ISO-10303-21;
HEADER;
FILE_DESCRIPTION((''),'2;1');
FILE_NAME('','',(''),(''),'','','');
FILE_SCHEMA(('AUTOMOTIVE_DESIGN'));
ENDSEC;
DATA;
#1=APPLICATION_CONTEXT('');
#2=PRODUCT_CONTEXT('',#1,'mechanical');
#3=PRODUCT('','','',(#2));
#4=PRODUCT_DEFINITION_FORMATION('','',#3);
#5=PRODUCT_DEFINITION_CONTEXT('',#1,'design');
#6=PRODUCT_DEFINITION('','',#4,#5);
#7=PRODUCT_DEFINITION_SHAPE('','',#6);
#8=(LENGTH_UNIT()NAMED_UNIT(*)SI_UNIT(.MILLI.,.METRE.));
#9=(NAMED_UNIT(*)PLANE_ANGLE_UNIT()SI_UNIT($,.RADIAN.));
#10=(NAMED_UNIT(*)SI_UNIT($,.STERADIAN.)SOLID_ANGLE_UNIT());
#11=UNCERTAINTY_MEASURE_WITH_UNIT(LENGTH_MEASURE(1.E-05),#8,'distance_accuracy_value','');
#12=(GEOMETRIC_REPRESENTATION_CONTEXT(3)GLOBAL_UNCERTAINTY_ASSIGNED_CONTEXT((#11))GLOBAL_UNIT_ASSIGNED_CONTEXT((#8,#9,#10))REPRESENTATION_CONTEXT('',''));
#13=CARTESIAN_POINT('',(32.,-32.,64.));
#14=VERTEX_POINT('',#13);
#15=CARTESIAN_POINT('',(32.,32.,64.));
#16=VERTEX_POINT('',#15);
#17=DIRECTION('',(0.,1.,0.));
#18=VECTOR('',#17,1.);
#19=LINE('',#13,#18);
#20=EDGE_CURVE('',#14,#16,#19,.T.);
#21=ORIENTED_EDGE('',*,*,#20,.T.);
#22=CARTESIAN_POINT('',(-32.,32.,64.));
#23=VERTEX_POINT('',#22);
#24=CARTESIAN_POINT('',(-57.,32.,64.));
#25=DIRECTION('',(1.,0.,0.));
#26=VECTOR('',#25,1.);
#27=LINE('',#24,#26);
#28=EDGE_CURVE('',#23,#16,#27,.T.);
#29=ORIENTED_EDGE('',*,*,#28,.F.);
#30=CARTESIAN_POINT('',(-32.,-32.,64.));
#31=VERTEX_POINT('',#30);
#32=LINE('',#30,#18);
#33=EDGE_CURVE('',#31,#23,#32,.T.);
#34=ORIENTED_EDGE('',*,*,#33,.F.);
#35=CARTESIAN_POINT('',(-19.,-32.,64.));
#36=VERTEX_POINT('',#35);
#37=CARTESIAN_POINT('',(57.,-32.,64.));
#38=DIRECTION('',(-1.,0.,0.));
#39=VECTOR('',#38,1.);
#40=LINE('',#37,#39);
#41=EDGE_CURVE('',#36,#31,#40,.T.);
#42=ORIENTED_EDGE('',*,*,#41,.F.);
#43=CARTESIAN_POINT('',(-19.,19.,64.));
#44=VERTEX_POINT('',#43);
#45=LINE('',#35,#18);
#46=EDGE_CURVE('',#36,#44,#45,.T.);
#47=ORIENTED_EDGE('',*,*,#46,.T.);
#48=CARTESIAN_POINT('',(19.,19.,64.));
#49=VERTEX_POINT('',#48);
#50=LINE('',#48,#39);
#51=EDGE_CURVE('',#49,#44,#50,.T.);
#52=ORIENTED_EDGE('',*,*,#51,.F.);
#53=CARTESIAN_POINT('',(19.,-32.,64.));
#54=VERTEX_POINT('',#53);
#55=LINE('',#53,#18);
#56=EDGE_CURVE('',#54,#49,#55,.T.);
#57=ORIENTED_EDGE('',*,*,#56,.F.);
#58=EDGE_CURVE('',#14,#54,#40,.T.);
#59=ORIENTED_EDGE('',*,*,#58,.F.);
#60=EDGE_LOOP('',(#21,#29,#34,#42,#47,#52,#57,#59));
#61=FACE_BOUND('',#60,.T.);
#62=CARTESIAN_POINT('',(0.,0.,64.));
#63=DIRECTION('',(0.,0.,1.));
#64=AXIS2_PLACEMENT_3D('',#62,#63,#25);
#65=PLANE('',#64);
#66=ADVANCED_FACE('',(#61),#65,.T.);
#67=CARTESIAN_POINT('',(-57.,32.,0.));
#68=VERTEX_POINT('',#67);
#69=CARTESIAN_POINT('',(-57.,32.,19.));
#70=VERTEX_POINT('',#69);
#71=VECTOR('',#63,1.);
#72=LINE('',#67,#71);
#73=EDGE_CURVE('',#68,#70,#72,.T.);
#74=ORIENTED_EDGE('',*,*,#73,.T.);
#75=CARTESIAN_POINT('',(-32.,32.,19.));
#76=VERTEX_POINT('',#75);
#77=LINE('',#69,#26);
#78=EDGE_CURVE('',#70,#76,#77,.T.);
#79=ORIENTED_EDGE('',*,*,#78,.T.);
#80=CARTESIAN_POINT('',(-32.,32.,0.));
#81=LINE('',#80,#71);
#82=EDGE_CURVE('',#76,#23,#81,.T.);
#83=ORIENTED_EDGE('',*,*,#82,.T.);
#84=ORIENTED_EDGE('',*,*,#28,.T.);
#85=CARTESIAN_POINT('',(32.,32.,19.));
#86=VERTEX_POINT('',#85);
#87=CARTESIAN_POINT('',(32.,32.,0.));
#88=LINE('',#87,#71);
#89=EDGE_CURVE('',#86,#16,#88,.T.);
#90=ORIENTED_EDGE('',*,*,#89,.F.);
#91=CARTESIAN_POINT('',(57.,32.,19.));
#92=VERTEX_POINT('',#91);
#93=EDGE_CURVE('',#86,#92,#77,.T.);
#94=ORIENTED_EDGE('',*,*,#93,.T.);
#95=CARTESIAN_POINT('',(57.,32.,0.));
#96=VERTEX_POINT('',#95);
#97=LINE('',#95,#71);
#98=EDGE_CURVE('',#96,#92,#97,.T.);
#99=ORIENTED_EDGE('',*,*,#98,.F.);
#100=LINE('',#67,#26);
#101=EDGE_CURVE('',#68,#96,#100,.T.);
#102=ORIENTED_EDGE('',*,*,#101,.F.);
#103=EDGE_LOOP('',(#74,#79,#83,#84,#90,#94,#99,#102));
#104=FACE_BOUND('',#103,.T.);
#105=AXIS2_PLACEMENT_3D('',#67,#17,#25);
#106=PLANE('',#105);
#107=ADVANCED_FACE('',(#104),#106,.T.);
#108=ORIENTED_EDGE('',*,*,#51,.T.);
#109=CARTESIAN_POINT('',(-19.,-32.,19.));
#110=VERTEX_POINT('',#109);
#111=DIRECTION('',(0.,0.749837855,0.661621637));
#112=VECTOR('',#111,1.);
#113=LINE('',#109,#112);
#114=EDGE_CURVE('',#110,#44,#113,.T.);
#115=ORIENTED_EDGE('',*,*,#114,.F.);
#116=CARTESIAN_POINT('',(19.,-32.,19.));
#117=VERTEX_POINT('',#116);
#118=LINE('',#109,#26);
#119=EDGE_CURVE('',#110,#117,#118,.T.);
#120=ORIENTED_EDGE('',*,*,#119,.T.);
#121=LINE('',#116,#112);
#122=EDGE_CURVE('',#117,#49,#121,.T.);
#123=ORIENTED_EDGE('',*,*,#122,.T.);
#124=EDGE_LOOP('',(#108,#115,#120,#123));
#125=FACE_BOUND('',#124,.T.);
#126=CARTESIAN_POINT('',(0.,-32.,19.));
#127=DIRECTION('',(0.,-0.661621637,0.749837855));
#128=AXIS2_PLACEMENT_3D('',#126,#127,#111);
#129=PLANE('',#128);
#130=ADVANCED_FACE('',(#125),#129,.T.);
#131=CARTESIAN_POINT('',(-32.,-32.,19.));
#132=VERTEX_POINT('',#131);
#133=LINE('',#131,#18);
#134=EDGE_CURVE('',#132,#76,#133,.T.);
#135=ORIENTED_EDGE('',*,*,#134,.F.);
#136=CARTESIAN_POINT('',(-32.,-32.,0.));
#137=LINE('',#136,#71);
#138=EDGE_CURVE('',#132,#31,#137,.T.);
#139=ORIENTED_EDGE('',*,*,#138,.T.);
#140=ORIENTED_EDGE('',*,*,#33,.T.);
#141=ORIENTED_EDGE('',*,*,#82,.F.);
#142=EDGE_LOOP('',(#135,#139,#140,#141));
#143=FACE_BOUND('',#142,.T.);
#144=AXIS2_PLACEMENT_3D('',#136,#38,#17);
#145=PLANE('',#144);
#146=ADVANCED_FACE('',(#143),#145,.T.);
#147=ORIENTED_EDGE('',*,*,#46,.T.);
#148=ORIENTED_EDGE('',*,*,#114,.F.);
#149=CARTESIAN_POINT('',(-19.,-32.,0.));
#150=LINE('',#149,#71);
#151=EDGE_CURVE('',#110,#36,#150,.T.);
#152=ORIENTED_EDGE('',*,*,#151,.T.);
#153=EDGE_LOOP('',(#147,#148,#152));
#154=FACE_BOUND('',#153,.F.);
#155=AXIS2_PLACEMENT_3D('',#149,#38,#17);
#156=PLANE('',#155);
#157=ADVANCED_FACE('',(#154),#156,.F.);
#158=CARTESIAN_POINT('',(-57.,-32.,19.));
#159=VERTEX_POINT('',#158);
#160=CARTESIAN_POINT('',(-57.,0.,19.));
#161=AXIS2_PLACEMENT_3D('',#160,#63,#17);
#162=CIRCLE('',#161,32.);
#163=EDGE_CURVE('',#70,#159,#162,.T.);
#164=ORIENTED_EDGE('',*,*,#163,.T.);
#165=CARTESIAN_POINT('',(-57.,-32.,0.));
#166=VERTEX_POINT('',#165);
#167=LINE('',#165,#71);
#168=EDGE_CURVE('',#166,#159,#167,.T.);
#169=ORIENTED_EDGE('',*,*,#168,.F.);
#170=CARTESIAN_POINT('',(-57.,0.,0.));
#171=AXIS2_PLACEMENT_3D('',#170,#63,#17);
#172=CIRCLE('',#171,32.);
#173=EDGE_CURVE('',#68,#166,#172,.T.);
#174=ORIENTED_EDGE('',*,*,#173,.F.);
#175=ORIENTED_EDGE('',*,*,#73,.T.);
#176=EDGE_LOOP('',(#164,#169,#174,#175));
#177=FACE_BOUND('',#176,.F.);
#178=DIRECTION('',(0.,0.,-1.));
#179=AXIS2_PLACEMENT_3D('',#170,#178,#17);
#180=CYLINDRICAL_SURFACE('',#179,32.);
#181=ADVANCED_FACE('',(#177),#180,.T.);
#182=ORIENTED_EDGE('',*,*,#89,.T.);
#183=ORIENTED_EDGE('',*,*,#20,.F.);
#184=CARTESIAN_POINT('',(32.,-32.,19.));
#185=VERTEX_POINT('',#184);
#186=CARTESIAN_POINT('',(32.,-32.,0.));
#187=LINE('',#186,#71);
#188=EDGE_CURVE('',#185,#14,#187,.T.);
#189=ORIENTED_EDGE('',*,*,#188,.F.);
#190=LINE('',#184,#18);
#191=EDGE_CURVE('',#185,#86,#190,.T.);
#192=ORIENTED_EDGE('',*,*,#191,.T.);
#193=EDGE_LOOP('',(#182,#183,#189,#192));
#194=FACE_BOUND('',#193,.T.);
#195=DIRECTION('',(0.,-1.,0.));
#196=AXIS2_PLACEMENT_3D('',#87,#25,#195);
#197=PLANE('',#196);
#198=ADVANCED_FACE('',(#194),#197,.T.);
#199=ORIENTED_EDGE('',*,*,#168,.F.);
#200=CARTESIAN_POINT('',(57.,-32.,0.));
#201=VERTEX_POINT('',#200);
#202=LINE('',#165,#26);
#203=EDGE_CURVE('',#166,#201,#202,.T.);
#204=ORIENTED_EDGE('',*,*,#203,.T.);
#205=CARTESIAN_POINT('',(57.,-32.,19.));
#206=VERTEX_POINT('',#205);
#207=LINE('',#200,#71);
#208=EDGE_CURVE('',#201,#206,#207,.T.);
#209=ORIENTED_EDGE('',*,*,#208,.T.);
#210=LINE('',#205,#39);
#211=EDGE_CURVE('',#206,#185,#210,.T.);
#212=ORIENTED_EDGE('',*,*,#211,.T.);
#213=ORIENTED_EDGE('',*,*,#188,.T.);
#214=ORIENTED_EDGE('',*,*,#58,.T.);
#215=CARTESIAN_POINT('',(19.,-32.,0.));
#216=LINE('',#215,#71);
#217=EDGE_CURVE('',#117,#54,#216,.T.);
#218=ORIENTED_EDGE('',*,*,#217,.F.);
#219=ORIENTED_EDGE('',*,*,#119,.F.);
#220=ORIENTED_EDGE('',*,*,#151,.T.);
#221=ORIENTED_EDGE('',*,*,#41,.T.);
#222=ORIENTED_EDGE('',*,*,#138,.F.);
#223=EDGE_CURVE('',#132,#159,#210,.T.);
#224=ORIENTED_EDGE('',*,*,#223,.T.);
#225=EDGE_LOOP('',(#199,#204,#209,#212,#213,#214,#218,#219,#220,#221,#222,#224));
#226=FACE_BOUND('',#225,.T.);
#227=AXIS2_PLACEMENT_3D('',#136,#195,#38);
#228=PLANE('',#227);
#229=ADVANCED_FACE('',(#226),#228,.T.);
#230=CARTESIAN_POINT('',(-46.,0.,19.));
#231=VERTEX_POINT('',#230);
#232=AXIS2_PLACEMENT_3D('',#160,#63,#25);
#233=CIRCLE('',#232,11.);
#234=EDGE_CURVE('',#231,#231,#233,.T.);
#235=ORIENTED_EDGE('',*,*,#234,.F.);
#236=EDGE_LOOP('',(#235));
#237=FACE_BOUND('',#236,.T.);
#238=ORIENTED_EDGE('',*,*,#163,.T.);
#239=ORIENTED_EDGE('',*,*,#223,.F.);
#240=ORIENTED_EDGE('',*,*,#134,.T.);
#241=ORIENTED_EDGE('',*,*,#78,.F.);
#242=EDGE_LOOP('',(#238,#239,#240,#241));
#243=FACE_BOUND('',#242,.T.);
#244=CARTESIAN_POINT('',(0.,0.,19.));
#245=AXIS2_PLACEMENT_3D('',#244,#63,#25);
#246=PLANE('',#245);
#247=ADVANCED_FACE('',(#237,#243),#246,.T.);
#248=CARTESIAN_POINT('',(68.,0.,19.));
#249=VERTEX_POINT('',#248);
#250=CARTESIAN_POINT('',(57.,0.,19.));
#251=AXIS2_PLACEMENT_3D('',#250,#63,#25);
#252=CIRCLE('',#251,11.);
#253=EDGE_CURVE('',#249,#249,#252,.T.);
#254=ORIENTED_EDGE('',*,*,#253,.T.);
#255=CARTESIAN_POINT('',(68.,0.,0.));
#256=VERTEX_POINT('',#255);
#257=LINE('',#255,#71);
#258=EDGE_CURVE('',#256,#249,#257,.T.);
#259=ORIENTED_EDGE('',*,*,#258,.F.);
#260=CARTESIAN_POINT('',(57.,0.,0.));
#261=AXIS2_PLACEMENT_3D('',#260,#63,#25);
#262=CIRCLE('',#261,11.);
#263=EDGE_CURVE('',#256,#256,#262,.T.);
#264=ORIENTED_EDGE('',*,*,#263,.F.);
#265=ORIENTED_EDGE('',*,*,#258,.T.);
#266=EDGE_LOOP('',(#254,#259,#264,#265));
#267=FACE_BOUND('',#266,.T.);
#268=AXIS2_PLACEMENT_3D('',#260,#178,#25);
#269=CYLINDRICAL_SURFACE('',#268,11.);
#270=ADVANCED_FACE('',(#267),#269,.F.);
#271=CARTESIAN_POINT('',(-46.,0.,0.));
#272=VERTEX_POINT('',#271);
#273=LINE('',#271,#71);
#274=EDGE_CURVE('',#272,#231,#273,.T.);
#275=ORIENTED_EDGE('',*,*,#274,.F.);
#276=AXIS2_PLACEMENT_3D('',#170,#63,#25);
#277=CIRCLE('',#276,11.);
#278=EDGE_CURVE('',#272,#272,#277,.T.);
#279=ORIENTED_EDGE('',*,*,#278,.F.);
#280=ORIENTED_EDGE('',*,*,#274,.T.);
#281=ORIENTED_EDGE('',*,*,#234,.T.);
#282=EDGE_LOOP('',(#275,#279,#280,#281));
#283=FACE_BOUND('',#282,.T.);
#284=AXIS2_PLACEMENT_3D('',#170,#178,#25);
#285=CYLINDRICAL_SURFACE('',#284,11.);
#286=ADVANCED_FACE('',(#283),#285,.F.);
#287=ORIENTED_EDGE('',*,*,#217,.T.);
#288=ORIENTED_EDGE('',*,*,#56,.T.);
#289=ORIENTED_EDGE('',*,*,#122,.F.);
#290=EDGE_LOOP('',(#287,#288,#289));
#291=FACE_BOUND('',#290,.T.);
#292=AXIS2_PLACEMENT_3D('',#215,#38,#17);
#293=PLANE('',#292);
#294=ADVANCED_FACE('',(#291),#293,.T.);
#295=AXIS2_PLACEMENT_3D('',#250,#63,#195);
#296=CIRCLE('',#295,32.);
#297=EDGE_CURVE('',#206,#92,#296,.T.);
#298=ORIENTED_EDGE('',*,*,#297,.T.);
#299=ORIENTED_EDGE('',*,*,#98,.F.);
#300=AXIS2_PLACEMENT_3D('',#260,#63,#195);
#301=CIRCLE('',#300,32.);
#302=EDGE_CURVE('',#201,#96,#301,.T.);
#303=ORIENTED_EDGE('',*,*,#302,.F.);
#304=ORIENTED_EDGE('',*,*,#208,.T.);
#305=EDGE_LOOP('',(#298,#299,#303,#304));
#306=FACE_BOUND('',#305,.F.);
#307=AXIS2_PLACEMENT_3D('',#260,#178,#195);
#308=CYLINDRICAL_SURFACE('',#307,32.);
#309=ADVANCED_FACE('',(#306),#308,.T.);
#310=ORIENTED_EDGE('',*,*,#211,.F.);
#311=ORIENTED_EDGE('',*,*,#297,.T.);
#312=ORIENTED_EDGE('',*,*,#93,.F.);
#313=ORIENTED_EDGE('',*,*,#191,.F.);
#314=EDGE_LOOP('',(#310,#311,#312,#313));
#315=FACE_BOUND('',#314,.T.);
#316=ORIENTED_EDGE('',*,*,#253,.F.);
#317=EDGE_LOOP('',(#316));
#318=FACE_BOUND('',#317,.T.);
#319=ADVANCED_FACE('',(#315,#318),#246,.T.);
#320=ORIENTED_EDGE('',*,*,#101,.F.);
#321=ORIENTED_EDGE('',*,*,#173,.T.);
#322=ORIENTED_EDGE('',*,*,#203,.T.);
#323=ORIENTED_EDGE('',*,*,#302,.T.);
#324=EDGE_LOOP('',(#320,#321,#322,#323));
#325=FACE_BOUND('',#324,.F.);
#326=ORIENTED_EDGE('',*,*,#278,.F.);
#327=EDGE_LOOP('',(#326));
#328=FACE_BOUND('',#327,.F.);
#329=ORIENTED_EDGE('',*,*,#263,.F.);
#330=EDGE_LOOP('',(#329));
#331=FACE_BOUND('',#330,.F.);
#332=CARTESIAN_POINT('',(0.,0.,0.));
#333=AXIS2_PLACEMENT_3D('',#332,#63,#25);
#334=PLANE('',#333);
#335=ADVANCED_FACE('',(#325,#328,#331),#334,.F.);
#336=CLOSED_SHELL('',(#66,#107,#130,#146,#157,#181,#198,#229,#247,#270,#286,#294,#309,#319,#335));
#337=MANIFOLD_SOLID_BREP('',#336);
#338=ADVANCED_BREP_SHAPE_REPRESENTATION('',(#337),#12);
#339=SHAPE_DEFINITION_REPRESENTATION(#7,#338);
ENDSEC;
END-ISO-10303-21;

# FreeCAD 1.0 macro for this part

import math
import FreeCAD as App
import Part
import Sketcher

V = App.Vector
Q = App.Units.Quantity

doc = App.newDocument("Part")
body = doc.addObject("PartDesign::Body", "Body")
body.AllowCompound = True

# Sketch on YZ plane
sketch1 = body.newObject("Sketcher::SketchObject", "Sketch")
sketch1.AttachmentSupport = (doc.getObject("YZ_Plane"), [""])
sketch1.MapMode = "FlatFace"
sketch1.addGeometry(Part.LineSegment(V(19, 64, 0), V(-32, 19, 0)), False)
sketch1.addGeometry(Part.LineSegment(V(-32, 19, 0), V(19, 19, 0)), False)
sketch1.addGeometry(Part.LineSegment(V(19, 19, 0), V(19, 64, 0)), False)
sketch1.addConstraint(Sketcher.Constraint("Coincident", 0, 2, 1, 1))
sketch1.addConstraint(Sketcher.Constraint("Coincident", 1, 2, 2, 1))
sketch1.addConstraint(Sketcher.Constraint("Coincident", 2, 2, 0, 1))
sketch1.addConstraint(Sketcher.Constraint("Horizontal", 1))
sketch1.addConstraint(Sketcher.Constraint("Vertical", 2))
sketch1.addConstraint(Sketcher.Constraint("DistanceY", -1, 1, 0, 2, Q("19 mm")))
sketch1.addConstraint(Sketcher.Constraint("DistanceX", -1, 1, 1, 2, Q("19 mm")))
sketch1.addConstraint(Sketcher.Constraint("DistanceY", -1, 1, 2, 2, Q("64 mm")))
sketch1.addConstraint(Sketcher.Constraint("DistanceX", 1, 1, 1, 2, Q("51 mm")))
pad1 = body.newObject("PartDesign::Pad", "Pad")
pad1.Profile = sketch1
pad1.Length = 38
pad1.Midplane = True

# Sketch on XY plane
sketch2 = body.newObject("Sketcher::SketchObject", "Sketch001")
sketch2.AttachmentSupport = (doc.getObject("XY_Plane"), [""])
sketch2.MapMode = "FlatFace"
sketch2.addGeometry(Part.LineSegment(V(32, -32, 0), V(57, -32, 0)), False)
sketch2.addGeometry(Part.ArcOfCircle(Part.Circle(V(57, 0, 0), V(0, 0, 1), 32), math.radians(-90), math.radians(90)), False)
sketch2.addGeometry(Part.LineSegment(V(57, 32, 0), V(32, 32, 0)), False)
sketch2.addGeometry(Part.LineSegment(V(32, 32, 0), V(32, -32, 0)), False)
sketch2.addGeometry(Part.Circle(V(57, 0, 0), V(0, 0, 1), 11), False)
sketch2.addGeometry(Part.LineSegment(V(-19, -32, 0), V(19, -32, 0)), False)
sketch2.addGeometry(Part.LineSegment(V(19, -32, 0), V(19, 19, 0)), False)
sketch2.addGeometry(Part.LineSegment(V(19, 19, 0), V(-19, 19, 0)), False)
sketch2.addGeometry(Part.LineSegment(V(-19, 19, 0), V(-19, -32, 0)), False)
sketch2.addGeometry(Part.LineSegment(V(-32, -32, 0), V(-32, 32, 0)), False)
sketch2.addGeometry(Part.LineSegment(V(-32, 32, 0), V(-57, 32, 0)), False)
sketch2.addGeometry(Part.ArcOfCircle(Part.Circle(V(-57, 0, 0), V(0, 0, 1), 32), math.radians(90), math.radians(270)), False)
sketch2.addGeometry(Part.LineSegment(V(-57, -32, 0), V(-32, -32, 0)), False)
sketch2.addGeometry(Part.Circle(V(-57, 0, 0), V(0, 0, 1), 11), False)
sketch2.addConstraint(Sketcher.Constraint("Tangent", 0, 2, 1, 1))
sketch2.addConstraint(Sketcher.Constraint("Tangent", 1, 2, 2, 1))
sketch2.addConstraint(Sketcher.Constraint("Coincident", 2, 2, 3, 1))
sketch2.addConstraint(Sketcher.Constraint("Coincident", 3, 2, 0, 1))
sketch2.addConstraint(Sketcher.Constraint("Coincident", 5, 2, 6, 1))
sketch2.addConstraint(Sketcher.Constraint("Coincident", 6, 2, 7, 1))
sketch2.addConstraint(Sketcher.Constraint("Coincident", 7, 2, 8, 1))
sketch2.addConstraint(Sketcher.Constraint("Coincident", 8, 2, 5, 1))
sketch2.addConstraint(Sketcher.Constraint("Coincident", 9, 2, 10, 1))
sketch2.addConstraint(Sketcher.Constraint("Tangent", 10, 2, 11, 1))
sketch2.addConstraint(Sketcher.Constraint("Tangent", 11, 2, 12, 1))
sketch2.addConstraint(Sketcher.Constraint("Coincident", 12, 2, 9, 1))
sketch2.addConstraint(Sketcher.Constraint("Horizontal", 0))
sketch2.addConstraint(Sketcher.Constraint("Horizontal", 2))
sketch2.addConstraint(Sketcher.Constraint("Vertical", 3))
sketch2.addConstraint(Sketcher.Constraint("Horizontal", 5))
sketch2.addConstraint(Sketcher.Constraint("Vertical", 6))
sketch2.addConstraint(Sketcher.Constraint("Horizontal", 7))
sketch2.addConstraint(Sketcher.Constraint("Vertical", 8))
sketch2.addConstraint(Sketcher.Constraint("Vertical", 9))
sketch2.addConstraint(Sketcher.Constraint("Horizontal", 10))
sketch2.addConstraint(Sketcher.Constraint("Horizontal", 12))
sketch2.addConstraint(Sketcher.Constraint("Coincident", 4, 3, 1, 3))
sketch2.addConstraint(Sketcher.Constraint("Coincident", 13, 3, 11, 3))
sketch2.addConstraint(Sketcher.Constraint("Equal", 1, 11))
sketch2.addConstraint(Sketcher.Constraint("Equal", 4, 13))
sketch2.addConstraint(Sketcher.Constraint("Symmetric", 1, 3, 11, 3, -1, 1))
sketch2.addConstraint(Sketcher.Constraint("Symmetric", 2, 2, 9, 2, -2))
sketch2.addConstraint(Sketcher.Constraint("Horizontal", 3, 2, 5, 2))
sketch2.addConstraint(Sketcher.Constraint("Diameter", 4, Q("22 mm")))
sketch2.addConstraint(Sketcher.Constraint("Radius", 1, Q("32 mm")))
sketch2.addConstraint(Sketcher.Constraint("DistanceX", 11, 3, 1, 3, Q("114 mm")))
sketch2.addConstraint(Sketcher.Constraint("DistanceX", 5, 2, 3, 2, Q("13 mm")))
sketch2.addConstraint(Sketcher.Constraint("DistanceY", 6, 2, 2, 2, Q("13 mm")))
sketch2.addConstraint(Sketcher.Constraint("DistanceX", 9, 2, 7, 2, Q("13 mm")))
sketch2.addConstraint(Sketcher.Constraint("DistanceX", 9, 2, 2, 2, Q("64 mm")))
pad2 = body.newObject("PartDesign::Pad", "Pad001")
pad2.Profile = sketch2
pad2.Length = 19

# Sketch on XY plane
sketch3 = body.newObject("Sketcher::SketchObject", "Sketch002")
sketch3.AttachmentSupport = (doc.getObject("XY_Plane"), [""])
sketch3.MapMode = "FlatFace"
sketch3.addGeometry(Part.LineSegment(V(19, -32, 0), V(32, -32, 0)), False)
sketch3.addGeometry(Part.LineSegment(V(32, -32, 0), V(32, 32, 0)), False)
sketch3.addGeometry(Part.LineSegment(V(32, 32, 0), V(-32, 32, 0)), False)
sketch3.addGeometry(Part.LineSegment(V(-32, 32, 0), V(-32, -32, 0)), False)
sketch3.addGeometry(Part.LineSegment(V(-32, -32, 0), V(-19, -32, 0)), False)
sketch3.addGeometry(Part.LineSegment(V(-19, -32, 0), V(-19, 19, 0)), False)
sketch3.addGeometry(Part.LineSegment(V(-19, 19, 0), V(19, 19, 0)), False)
sketch3.addGeometry(Part.LineSegment(V(19, 19, 0), V(19, -32, 0)), False)
sketch3.addConstraint(Sketcher.Constraint("Coincident", 0, 2, 1, 1))
sketch3.addConstraint(Sketcher.Constraint("Coincident", 1, 2, 2, 1))
sketch3.addConstraint(Sketcher.Constraint("Coincident", 2, 2, 3, 1))
sketch3.addConstraint(Sketcher.Constraint("Coincident", 3, 2, 4, 1))
sketch3.addConstraint(Sketcher.Constraint("Coincident", 4, 2, 5, 1))
sketch3.addConstraint(Sketcher.Constraint("Coincident", 5, 2, 6, 1))
sketch3.addConstraint(Sketcher.Constraint("Coincident", 6, 2, 7, 1))
sketch3.addConstraint(Sketcher.Constraint("Coincident", 7, 2, 0, 1))
sketch3.addConstraint(Sketcher.Constraint("Horizontal", 0))
sketch3.addConstraint(Sketcher.Constraint("Vertical", 1))
sketch3.addConstraint(Sketcher.Constraint("Horizontal", 2))
sketch3.addConstraint(Sketcher.Constraint("Vertical", 3))
sketch3.addConstraint(Sketcher.Constraint("Horizontal", 4))
sketch3.addConstraint(Sketcher.Constraint("Vertical", 5))
sketch3.addConstraint(Sketcher.Constraint("Horizontal", 6))
sketch3.addConstraint(Sketcher.Constraint("Vertical", 7))
sketch3.addConstraint(Sketcher.Constraint("Symmetric", 0, 2, 2, 2, -1, 1))
sketch3.addConstraint(Sketcher.Constraint("Symmetric", 4, 2, 7, 2, -2))
sketch3.addConstraint(Sketcher.Constraint("Equal", 2, 1))
sketch3.addConstraint(Sketcher.Constraint("DistanceX", 0, 1, 0, 2, Q("13 mm")))
sketch3.addConstraint(Sketcher.Constraint("DistanceX", 2, 2, 2, 1, Q("64 mm")))
sketch3.addConstraint(Sketcher.Constraint("DistanceY", 5, 2, 2, 2, Q("13 mm")))
pad3 = body.newObject("PartDesign::Pad", "Pad002")
pad3.Profile = sketch3
pad3.Length = 64

doc.recompute()
